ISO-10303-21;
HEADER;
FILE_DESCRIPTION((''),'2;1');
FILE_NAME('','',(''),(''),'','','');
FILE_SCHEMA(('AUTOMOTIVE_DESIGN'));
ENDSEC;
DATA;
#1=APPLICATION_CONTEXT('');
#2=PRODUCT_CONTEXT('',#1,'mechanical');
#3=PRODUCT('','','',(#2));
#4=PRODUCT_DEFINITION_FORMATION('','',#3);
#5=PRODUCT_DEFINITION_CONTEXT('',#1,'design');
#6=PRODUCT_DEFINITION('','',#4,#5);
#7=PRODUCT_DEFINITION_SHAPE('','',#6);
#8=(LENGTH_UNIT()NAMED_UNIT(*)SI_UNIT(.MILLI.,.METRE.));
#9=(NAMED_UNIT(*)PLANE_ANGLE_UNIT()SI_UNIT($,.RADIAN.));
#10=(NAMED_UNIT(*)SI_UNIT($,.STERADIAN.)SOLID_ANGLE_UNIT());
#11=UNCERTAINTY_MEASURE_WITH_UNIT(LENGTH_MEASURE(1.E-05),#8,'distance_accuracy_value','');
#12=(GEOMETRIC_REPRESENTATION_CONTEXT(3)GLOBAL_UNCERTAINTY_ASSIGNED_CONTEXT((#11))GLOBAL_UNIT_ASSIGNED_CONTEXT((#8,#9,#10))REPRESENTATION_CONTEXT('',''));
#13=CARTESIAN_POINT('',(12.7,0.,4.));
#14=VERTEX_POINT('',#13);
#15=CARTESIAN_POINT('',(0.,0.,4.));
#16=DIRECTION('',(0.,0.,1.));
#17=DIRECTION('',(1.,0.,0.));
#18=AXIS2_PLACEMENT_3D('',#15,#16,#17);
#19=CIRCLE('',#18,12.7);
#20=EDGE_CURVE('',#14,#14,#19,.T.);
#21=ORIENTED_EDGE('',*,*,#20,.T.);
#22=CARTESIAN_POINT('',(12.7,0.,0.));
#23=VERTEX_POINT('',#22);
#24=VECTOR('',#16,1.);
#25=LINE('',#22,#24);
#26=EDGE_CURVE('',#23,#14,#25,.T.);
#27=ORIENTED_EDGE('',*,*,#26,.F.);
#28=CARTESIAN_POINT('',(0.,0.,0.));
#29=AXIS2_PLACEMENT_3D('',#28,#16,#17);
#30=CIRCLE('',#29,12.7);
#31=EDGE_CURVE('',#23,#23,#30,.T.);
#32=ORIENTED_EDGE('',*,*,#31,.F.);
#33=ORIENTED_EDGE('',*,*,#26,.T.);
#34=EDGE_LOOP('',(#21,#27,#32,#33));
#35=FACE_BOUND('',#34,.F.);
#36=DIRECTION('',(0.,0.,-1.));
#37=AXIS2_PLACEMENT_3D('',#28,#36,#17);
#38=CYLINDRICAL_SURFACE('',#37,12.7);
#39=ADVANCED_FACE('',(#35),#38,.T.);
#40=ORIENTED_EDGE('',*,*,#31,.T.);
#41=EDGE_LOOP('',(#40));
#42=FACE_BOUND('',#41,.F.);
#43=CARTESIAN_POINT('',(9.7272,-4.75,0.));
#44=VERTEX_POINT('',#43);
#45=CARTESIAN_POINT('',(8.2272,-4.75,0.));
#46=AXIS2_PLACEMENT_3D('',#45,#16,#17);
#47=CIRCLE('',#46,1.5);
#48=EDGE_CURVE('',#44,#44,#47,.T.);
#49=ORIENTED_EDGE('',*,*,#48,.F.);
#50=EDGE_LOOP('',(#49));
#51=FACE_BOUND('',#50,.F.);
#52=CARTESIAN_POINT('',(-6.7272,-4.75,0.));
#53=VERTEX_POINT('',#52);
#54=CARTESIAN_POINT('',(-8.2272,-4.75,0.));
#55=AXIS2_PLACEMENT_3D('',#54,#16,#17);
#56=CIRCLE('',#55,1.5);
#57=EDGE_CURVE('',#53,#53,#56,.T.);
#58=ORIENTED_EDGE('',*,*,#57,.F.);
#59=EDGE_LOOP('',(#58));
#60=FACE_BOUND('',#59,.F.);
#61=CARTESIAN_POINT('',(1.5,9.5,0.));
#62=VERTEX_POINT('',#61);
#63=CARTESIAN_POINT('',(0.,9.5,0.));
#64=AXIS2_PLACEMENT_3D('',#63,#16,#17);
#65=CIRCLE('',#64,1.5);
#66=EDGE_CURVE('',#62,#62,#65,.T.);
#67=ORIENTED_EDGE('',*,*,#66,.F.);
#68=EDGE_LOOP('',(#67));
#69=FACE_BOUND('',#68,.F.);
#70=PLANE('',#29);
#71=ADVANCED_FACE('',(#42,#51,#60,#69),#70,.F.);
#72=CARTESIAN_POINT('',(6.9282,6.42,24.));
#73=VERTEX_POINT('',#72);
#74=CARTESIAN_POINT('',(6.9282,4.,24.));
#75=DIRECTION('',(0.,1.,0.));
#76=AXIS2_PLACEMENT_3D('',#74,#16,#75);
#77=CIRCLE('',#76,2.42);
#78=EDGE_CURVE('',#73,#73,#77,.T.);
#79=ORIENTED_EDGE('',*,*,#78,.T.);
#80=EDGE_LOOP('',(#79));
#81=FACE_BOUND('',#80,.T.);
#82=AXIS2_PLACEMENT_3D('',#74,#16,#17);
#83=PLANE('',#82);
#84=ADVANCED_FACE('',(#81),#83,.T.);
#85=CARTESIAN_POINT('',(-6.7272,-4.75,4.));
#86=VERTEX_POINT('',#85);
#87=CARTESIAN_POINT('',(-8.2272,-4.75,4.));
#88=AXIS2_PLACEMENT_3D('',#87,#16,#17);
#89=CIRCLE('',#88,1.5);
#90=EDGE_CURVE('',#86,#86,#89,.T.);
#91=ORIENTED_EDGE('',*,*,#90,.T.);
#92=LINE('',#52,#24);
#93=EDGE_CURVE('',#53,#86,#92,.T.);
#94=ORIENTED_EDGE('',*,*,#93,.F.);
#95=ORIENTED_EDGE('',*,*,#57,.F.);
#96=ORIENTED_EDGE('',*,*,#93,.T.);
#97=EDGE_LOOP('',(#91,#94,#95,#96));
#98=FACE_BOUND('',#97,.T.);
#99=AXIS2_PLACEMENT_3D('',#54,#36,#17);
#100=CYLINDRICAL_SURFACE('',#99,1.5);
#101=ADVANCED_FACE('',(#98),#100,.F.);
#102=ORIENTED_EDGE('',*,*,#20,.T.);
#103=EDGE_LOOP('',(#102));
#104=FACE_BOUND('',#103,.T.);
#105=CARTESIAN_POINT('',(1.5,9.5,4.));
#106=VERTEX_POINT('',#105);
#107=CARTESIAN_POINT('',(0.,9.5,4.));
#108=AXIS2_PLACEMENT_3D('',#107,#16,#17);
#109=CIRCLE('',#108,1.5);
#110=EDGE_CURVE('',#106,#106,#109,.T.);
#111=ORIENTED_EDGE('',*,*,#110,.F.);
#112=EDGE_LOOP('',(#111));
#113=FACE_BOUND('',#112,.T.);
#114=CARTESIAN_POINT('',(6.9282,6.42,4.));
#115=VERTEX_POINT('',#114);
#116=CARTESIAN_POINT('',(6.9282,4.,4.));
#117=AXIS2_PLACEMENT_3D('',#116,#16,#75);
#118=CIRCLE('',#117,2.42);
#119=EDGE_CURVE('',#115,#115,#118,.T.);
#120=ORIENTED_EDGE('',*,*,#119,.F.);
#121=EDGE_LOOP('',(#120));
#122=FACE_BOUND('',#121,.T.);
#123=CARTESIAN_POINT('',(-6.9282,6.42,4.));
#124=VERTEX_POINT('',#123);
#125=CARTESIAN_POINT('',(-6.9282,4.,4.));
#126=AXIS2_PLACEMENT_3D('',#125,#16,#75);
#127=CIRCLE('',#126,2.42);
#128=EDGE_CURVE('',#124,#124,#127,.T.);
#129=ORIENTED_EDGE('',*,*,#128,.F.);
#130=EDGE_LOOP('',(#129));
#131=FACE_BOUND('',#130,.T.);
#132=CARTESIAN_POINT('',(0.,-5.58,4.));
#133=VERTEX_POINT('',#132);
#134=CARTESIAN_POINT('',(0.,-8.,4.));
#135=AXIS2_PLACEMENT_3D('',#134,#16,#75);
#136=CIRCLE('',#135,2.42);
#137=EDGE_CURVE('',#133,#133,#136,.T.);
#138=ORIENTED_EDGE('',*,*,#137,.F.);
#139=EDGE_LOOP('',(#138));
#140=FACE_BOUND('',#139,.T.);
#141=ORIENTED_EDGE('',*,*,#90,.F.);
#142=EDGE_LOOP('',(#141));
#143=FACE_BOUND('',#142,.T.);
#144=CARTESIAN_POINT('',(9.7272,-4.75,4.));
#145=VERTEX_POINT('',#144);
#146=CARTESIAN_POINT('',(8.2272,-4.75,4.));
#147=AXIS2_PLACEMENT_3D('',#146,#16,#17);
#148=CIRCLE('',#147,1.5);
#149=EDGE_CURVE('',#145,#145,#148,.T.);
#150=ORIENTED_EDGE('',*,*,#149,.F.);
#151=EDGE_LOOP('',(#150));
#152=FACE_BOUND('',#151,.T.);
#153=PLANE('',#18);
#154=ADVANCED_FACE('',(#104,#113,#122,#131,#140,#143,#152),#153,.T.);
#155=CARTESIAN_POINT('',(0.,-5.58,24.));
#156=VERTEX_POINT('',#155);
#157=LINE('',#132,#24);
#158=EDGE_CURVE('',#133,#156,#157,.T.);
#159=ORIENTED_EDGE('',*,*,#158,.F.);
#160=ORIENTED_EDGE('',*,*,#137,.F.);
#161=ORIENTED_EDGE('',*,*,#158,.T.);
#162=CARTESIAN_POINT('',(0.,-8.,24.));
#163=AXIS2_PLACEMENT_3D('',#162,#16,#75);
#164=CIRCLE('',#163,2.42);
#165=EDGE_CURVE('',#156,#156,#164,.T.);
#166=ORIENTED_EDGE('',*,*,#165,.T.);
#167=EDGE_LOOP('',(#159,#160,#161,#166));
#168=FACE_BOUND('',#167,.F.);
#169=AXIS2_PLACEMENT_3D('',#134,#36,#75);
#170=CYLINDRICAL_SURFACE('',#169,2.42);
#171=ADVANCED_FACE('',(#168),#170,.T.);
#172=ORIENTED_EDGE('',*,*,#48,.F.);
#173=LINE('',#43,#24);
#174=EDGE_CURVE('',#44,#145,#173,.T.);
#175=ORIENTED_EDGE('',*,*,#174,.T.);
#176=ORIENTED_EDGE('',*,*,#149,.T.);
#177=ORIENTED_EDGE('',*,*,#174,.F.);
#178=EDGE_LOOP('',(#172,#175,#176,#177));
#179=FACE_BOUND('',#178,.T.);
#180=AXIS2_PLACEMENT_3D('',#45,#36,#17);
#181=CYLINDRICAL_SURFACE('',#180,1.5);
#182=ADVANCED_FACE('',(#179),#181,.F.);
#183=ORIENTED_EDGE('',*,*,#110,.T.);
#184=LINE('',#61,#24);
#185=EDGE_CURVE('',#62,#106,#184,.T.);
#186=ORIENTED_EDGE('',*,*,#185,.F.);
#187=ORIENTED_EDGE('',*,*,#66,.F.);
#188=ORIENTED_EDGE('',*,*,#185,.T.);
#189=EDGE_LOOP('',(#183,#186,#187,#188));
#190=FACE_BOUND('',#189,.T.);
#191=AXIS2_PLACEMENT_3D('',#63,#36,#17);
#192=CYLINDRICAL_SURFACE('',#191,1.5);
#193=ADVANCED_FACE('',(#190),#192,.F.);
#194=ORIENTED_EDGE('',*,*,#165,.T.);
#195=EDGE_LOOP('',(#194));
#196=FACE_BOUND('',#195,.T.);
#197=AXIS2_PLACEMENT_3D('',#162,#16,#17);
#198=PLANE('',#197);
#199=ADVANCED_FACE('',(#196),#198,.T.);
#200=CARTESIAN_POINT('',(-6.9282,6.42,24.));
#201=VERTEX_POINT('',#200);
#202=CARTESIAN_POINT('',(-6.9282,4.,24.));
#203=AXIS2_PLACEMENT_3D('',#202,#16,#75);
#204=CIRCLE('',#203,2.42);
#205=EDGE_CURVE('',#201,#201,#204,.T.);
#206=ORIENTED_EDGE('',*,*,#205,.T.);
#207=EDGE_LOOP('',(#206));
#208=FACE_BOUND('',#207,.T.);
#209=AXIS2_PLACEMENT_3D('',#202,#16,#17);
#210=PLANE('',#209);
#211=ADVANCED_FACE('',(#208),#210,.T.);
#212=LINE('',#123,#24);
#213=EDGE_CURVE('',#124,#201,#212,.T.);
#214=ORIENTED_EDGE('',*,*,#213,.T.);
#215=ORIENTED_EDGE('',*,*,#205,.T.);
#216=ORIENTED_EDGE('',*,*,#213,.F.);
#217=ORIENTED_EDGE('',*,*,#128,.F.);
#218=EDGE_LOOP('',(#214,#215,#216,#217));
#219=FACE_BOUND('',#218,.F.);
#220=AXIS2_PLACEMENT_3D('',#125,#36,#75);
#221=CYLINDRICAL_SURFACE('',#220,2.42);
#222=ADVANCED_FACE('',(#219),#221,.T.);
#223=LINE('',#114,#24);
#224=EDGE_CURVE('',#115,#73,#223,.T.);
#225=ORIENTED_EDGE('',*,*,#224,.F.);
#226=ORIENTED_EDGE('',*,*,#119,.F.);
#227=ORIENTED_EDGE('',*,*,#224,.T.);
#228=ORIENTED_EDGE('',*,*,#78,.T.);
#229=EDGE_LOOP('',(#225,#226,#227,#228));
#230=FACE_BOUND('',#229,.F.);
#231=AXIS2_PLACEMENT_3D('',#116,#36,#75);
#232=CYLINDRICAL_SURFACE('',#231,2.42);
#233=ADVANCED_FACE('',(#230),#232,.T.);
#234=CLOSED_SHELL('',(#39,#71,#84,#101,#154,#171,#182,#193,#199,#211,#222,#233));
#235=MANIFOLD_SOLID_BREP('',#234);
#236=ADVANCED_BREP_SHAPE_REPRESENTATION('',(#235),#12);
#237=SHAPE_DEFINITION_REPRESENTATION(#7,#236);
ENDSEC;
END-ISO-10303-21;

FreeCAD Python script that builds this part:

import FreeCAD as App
import Part
import Sketcher
from FreeCAD import Vector
Q = App.Units.Quantity

doc = App.newDocument("Part")
params = doc.addObject("Spreadsheet::Sheet", "Params")
for row, (alias, value) in enumerate([
    ("sketch1_diameter", "3 mm"),
    ("sketch1_diameter2", "25.4 mm"),
    ("pad1_length", "4 mm"),
    ("sketch2_diameter", "4.84 mm"),
    ("pad2_length", "20 mm"),
], start=1):
    params.set(f"A{row}", alias)
    params.set(f"B{row}", "=" + value)
    params.setAlias(f"B{row}", alias)

body = doc.addObject("PartDesign::Body", "Body")

# Sketch on XY plane
sketch1 = doc.addObject("Sketcher::SketchObject", "Sketch")
body.addObject(sketch1)
sketch1.AttachmentSupport = (doc.XY_Plane, [""])
sketch1.MapMode = "FlatFace"
sketch1.addGeometry([
    Part.Circle(Vector(0, 0, 0), Vector(0, 0, 1), 12.7),
    Part.Circle(Vector(-8.2, -4.8, 0), Vector(0, 0, 1), 1.5),
    Part.Circle(Vector(8.2, -4.8, 0), Vector(0, 0, 1), 1.5),
    Part.Circle(Vector(0, 9.5, 0), Vector(0, 0, 1), 1.5),
], False)
sketch1.addConstraint([
    Sketcher.Constraint("Coincident", 0, 3, -1, 1),
    Sketcher.Constraint("Equal", 1, 2),
    Sketcher.Constraint("Equal", 2, 3),
    Sketcher.Constraint("Symmetric", 1, 3, 2, 3, -2),
    Sketcher.Constraint("PointOnObject", 3, 3, -2),
    Sketcher.Constraint("Diameter", 1, Q("3 mm")),
    Sketcher.Constraint("Diameter", 0, Q("25.4 mm")),
    Sketcher.Constraint("DistanceY", -1, 1, 3, 3, Q("9.5 mm")),
    Sketcher.Constraint("DistanceY", 1, 3, -1, 1, Q("4.75 mm")),
    Sketcher.Constraint("DistanceX", 1, 3, -1, 1, Q("8.2272 mm")),
])
sketch1.setExpression("Constraints[5]", "Params.sketch1_diameter")
sketch1.setExpression("Constraints[6]", "Params.sketch1_diameter2")
pad1 = doc.addObject("PartDesign::Pad", "Pad")
body.addObject(pad1)
pad1.Profile = sketch1
pad1.setExpression("Length", "Params.pad1_length")

# Sketch on XY plane
sketch2 = doc.addObject("Sketcher::SketchObject", "Sketch001")
body.addObject(sketch2)
sketch2.AttachmentSupport = (doc.XY_Plane, [""])
sketch2.MapMode = "FlatFace"
sketch2.AttachmentOffset = App.Placement(Vector(0, 0, 4), App.Rotation())
sketch2.addGeometry([
    Part.Circle(Vector(0, -8, 0), Vector(0, 0, 1), 2.4),
    Part.Circle(Vector(-6.9, 4, 0), Vector(0, 0, 1), 2.4),
    Part.Circle(Vector(6.9, 4, 0), Vector(0, 0, 1), 2.4),
], False)
sketch2.addConstraint([
    Sketcher.Constraint("Equal", 0, 1),
    Sketcher.Constraint("Equal", 1, 2),
    Sketcher.Constraint("Symmetric", 1, 3, 2, 3, -2),
    Sketcher.Constraint("PointOnObject", 0, 3, -2),
    Sketcher.Constraint("Diameter", 0, Q("4.84 mm")),
    Sketcher.Constraint("DistanceY", 0, 3, -1, 1, Q("8 mm")),
    Sketcher.Constraint("DistanceY", -1, 1, 1, 3, Q("4 mm")),
    Sketcher.Constraint("DistanceX", 1, 3, -1, 1, Q("6.9282 mm")),
])
sketch2.setExpression("Constraints[4]", "Params.sketch2_diameter")
pad2 = doc.addObject("PartDesign::Pad", "Pad001")
body.addObject(pad2)
pad2.Profile = sketch2
pad2.setExpression("Length", "Params.pad2_length")

doc.recompute()
